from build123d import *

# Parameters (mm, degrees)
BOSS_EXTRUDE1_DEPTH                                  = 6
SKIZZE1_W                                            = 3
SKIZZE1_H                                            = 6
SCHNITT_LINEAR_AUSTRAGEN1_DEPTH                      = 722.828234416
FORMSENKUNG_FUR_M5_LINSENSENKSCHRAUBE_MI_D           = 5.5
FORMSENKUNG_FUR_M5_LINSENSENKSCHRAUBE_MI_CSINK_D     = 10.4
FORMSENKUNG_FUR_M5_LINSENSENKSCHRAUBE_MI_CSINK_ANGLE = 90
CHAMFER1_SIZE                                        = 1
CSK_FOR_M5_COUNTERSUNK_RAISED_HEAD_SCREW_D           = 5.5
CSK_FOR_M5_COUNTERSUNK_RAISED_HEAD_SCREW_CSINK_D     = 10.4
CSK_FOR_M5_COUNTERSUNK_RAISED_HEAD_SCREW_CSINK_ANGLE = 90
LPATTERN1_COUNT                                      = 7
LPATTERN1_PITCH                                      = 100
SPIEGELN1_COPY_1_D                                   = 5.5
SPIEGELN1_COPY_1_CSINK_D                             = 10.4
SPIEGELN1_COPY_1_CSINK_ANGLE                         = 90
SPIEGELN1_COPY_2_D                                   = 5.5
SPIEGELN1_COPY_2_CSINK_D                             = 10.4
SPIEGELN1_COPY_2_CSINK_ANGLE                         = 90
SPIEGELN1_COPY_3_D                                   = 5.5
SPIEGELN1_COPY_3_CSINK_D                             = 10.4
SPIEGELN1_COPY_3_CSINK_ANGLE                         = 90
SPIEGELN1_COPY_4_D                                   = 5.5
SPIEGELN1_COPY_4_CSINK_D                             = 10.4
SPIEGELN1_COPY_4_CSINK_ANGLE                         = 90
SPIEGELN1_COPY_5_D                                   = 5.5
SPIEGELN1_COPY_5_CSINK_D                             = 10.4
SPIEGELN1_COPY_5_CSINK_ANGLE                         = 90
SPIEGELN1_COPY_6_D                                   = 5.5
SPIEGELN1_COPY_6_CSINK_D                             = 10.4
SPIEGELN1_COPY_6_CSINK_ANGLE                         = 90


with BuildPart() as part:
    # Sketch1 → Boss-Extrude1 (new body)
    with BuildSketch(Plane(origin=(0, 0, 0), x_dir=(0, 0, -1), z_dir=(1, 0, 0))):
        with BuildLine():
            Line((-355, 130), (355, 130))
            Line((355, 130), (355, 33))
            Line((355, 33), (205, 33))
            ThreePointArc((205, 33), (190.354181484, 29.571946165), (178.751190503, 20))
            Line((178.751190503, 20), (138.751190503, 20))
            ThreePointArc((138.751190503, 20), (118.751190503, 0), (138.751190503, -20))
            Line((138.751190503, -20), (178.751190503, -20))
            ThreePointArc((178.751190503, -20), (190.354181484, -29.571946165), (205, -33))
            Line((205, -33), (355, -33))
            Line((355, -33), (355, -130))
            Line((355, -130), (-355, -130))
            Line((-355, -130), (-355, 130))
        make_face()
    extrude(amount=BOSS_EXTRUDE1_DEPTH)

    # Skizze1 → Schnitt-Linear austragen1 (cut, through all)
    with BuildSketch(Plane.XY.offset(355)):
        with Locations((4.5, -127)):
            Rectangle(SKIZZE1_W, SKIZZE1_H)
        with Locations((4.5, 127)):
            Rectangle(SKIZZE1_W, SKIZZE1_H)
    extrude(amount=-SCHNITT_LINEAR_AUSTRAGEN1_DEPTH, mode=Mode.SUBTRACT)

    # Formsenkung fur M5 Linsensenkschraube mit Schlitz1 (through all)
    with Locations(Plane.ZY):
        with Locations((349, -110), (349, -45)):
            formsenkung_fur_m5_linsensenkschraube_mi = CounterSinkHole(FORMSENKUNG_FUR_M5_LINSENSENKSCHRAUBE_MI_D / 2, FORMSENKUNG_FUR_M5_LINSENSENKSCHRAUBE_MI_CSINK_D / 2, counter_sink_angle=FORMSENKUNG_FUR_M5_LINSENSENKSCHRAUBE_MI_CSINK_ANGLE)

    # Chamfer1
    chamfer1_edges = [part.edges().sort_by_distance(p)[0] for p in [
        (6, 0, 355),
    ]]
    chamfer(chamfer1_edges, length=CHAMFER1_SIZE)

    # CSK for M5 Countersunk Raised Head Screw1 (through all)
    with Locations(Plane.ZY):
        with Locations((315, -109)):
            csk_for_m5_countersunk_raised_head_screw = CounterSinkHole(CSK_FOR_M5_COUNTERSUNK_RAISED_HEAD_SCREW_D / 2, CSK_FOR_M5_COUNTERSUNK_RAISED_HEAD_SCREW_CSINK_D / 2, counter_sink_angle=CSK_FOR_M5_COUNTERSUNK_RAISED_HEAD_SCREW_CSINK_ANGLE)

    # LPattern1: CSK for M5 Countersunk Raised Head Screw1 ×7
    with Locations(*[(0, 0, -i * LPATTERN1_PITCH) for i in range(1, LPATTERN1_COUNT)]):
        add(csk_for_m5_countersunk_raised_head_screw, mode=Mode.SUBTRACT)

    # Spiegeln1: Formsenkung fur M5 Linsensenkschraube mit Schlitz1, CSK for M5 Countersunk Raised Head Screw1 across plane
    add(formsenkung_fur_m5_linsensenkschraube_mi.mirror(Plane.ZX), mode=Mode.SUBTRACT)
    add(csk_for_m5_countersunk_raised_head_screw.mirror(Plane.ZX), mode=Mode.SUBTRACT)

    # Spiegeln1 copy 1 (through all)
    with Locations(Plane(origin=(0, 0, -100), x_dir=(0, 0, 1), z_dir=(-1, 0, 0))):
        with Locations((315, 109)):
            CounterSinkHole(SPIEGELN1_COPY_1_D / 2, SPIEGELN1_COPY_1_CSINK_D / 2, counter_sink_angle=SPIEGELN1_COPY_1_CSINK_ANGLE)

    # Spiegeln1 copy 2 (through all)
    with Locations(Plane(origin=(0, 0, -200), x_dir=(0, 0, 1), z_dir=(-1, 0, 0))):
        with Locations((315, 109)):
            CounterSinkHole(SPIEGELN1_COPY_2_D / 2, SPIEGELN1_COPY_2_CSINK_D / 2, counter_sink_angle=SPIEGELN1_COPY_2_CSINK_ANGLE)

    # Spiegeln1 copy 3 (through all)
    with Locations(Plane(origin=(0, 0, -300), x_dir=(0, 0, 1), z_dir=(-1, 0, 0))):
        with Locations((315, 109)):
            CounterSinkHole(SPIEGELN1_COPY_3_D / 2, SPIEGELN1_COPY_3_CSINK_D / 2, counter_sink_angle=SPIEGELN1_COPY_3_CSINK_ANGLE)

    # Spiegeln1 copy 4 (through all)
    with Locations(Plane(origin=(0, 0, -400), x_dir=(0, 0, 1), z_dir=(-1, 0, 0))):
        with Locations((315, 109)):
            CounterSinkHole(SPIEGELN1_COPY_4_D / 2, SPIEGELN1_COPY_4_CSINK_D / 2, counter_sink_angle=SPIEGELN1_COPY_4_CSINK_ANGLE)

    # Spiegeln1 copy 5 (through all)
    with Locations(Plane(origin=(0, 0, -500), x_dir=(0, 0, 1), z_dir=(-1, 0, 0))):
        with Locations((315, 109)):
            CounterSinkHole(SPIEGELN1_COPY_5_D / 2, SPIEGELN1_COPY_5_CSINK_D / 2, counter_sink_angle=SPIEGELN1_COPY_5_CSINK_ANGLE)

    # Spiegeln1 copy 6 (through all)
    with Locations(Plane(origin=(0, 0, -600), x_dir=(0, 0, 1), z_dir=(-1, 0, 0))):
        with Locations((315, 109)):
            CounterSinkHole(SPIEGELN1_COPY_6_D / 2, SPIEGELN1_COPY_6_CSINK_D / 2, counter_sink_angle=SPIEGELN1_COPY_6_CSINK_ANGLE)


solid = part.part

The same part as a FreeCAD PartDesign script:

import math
import FreeCAD as App
import Part
import Sketcher


def edges_at(feature, points):
    """Names of the edges that pass closest to the given points."""
    edges = feature.Shape.Edges
    near = lambda p: min(range(len(edges)), key=lambda i: edges[i].distToShape(Part.Vertex(*p))[0])
    return sorted({f"Edge{near(p) + 1}" for p in points})


def add_polygon(sketch, points):
    """Adds a closed chain of lines whose ends are joined by coincident constraints."""
    first, n = sketch.GeometryCount, len(points)
    for a, b in zip(points, points[1:] + points[:1]):
        sketch.addGeometry(Part.LineSegment(App.Vector(*a, 0), App.Vector(*b, 0)), False)
    for i in range(n):
        sketch.addConstraint(Sketcher.Constraint("Coincident", first + i, 2, first + (i + 1) % n, 1))

doc = App.newDocument("Part")
body = doc.addObject("PartDesign::Body", "Body")

# Sketch on YZ plane
sketch1 = doc.addObject("Sketcher::SketchObject", "Sketch")
body.addObject(sketch1)
sketch1.AttachmentSupport = (doc.YZ_Plane, [""])
sketch1.MapMode = "FlatFace"
sketch1.addGeometry([
    Part.LineSegment(App.Vector(130, -355, 0), App.Vector(130, 355, 0)),  # 0
    Part.LineSegment(App.Vector(130, 355, 0), App.Vector(-130, 355, 0)),  # 1
    Part.LineSegment(App.Vector(-130, 355, 0), App.Vector(-130, -355, 0)),  # 2
    Part.LineSegment(App.Vector(-130, -355, 0), App.Vector(-33, -355, 0)),  # 3
    Part.LineSegment(App.Vector(-33, -355, 0), App.Vector(-33, -205, 0)),  # 4
    Part.ArcOfCircle(Part.Circle(App.Vector(0, -205, 0), App.Vector(0, 0, 1), 33), math.radians(127), math.radians(180)),  # 5
    Part.LineSegment(App.Vector(-20, -179, 0), App.Vector(-20, -139, 0)),  # 6
    Part.ArcOfCircle(Part.Circle(App.Vector(0, -139, 0), App.Vector(0, 0, 1), 20), math.radians(0), math.radians(180)),  # 7
    Part.LineSegment(App.Vector(20, -139, 0), App.Vector(20, -179, 0)),  # 8
    Part.ArcOfCircle(Part.Circle(App.Vector(0, -205, 0), App.Vector(0, 0, 1), 33), math.radians(0), math.radians(53)),  # 9
    Part.LineSegment(App.Vector(33, -205, 0), App.Vector(33, -355, 0)),  # 10
    Part.LineSegment(App.Vector(33, -355, 0), App.Vector(130, -355, 0)),  # 11
], False)
sketch1.addConstraint([
    Sketcher.Constraint("Coincident", 0, 2, 1, 1),
    Sketcher.Constraint("Coincident", 1, 2, 2, 1),
    Sketcher.Constraint("Coincident", 2, 2, 3, 1),
    Sketcher.Constraint("Coincident", 3, 2, 4, 1),
    Sketcher.Constraint("Tangent", 4, 2, 5, 2),
    Sketcher.Constraint("Coincident", 5, 1, 6, 1),
    Sketcher.Constraint("Tangent", 6, 2, 7, 2),
    Sketcher.Constraint("Tangent", 7, 1, 8, 1),
    Sketcher.Constraint("Coincident", 8, 2, 9, 2),
    Sketcher.Constraint("Tangent", 9, 1, 10, 1),
    Sketcher.Constraint("Coincident", 10, 2, 11, 1),
    Sketcher.Constraint("Coincident", 11, 2, 0, 1),
    Sketcher.Constraint("Vertical", 0),
    Sketcher.Constraint("Horizontal", 1),
    Sketcher.Constraint("Vertical", 2),
    Sketcher.Constraint("Horizontal", 3),
    Sketcher.Constraint("Vertical", 4),
    Sketcher.Constraint("Vertical", 6),
    Sketcher.Constraint("Vertical", 8),
    Sketcher.Constraint("Vertical", 10),
    Sketcher.Constraint("Horizontal", 11),
    Sketcher.Constraint("Coincident", 9, 3, 5, 3),
    Sketcher.Constraint("Equal", 5, 9),
    Sketcher.Constraint("Symmetric", 0, 2, 2, 2, -1, 1),
    Sketcher.Constraint("Symmetric", 5, 1, 8, 2, -2),
    Sketcher.Constraint("Horizontal", 3, 2, 10, 2),
    Sketcher.Constraint("Radius", 5, 33.0),
    Sketcher.Constraint("Radius", 7, 20.0),
    Sketcher.Constraint("DistanceX", 1, 2, 1, 1, 260.0),
    Sketcher.Constraint("DistanceY", 0, 1, 0, 2, 710.0),
    Sketcher.Constraint("DistanceY", 4, 1, 4, 2, 150.0),
    Sketcher.Constraint("DistanceY", 6, 1, 6, 2, 40.0),
])
pad1 = doc.addObject("PartDesign::Pad", "Pad")
body.addObject(pad1)
pad1.Profile = sketch1
pad1.Length = 6

# Sketch on XY plane
sketch2 = doc.addObject("Sketcher::SketchObject", "Sketch001")
body.addObject(sketch2)
sketch2.AttachmentSupport = (doc.XY_Plane, [""])
sketch2.MapMode = "FlatFace"
sketch2.AttachmentOffset = App.Placement(App.Vector(0, 0, 355), App.Rotation())
add_polygon(sketch2, [(3, -124), (3, -130), (6, -130), (6, -124)])  # lines 0-3
add_polygon(sketch2, [(3, 130), (3, 124), (6, 124), (6, 130)])  # lines 4-7
sketch2.addConstraint([
    Sketcher.Constraint("Vertical", 0),
    Sketcher.Constraint("Horizontal", 1),
    Sketcher.Constraint("Vertical", 2),
    Sketcher.Constraint("Horizontal", 3),
    Sketcher.Constraint("Vertical", 4),
    Sketcher.Constraint("Horizontal", 5),
    Sketcher.Constraint("Vertical", 6),
    Sketcher.Constraint("Horizontal", 7),
    Sketcher.Constraint("Symmetric", 3, 2, 4, 2, -1),
    Sketcher.Constraint("Symmetric", 1, 2, 6, 2, -1),
    Sketcher.Constraint("DistanceX", 1, 1, 1, 2, 3.0),
    Sketcher.Constraint("DistanceY", 0, 2, 0, 1, 6.0),
    Sketcher.Constraint("DistanceX", -1, 1, 0, 2, 3.0),
    Sketcher.Constraint("DistanceY", 0, 2, -1, 1, 130.0),
])
pocket1 = doc.addObject("PartDesign::Pocket", "Pocket")
body.addObject(pocket1)
pocket1.Profile = sketch2
pocket1.Type = "ThroughAll"

# Sketch on YZ plane
sketch3 = doc.addObject("Sketcher::SketchObject", "Sketch002")
body.addObject(sketch3)
sketch3.AttachmentSupport = (doc.YZ_Plane, [""])
sketch3.MapMode = "FlatFace"
sketch3.addGeometry([
    Part.Circle(App.Vector(-110, 349, 0), App.Vector(0, 0, 1), 2.8),
    Part.Circle(App.Vector(-45, 349, 0), App.Vector(0, 0, 1), 2.8),
], False)
sketch3.addConstraint([
    Sketcher.Constraint("Equal", 0, 1),
    Sketcher.Constraint("Horizontal", 0, 3, 1, 3),
    Sketcher.Constraint("Diameter", 0, 5.5),
    Sketcher.Constraint("DistanceX", 0, 3, -1, 1, 110.0),
    Sketcher.Constraint("DistanceY", -1, 1, 0, 3, 349.0),
    Sketcher.Constraint("DistanceX", 1, 3, -1, 1, 45.0),
])
doc.recompute()
hole = doc.addObject("PartDesign::Hole", "Hole")
body.addObject(hole)
hole.Profile = sketch3
hole.ThreadType = "None"
hole.Diameter = 5.5
hole.DepthType = "ThroughAll"
hole.HoleCutType = "Countersink"
hole.HoleCutDiameter = 10.4
hole.HoleCutCountersinkAngle = 90
hole.Reversed = True
doc.recompute()

chamfer = doc.addObject("PartDesign::Chamfer", "Chamfer")
body.addObject(chamfer)
chamfer.Base = (hole, edges_at(hole, [(6, 0, 355)]))
chamfer.Size = 1

# Sketch on YZ plane
sketch4 = doc.addObject("Sketcher::SketchObject", "Sketch003")
body.addObject(sketch4)
sketch4.AttachmentSupport = (doc.YZ_Plane, [""])
sketch4.MapMode = "FlatFace"
sketch4.addGeometry(Part.Circle(App.Vector(-109, 315, 0), App.Vector(0, 0, 1), 2.8), False)
sketch4.addConstraint([
    Sketcher.Constraint("Diameter", 0, 5.5),
    Sketcher.Constraint("DistanceX", 0, 3, -1, 1, 109.0),
    Sketcher.Constraint("DistanceY", -1, 1, 0, 3, 315.0),
])
doc.recompute()
hole2 = doc.addObject("PartDesign::Hole", "Hole001")
body.addObject(hole2)
hole2.Profile = sketch4
hole2.ThreadType = "None"
hole2.Diameter = 5.5
hole2.DepthType = "ThroughAll"
hole2.HoleCutType = "Countersink"
hole2.HoleCutDiameter = 10.4
hole2.HoleCutCountersinkAngle = 90
hole2.Reversed = True
doc.recompute()

linearpattern = doc.addObject("PartDesign::LinearPattern", "LinearPattern")
body.addObject(linearpattern)
linearpattern.Originals = [hole2]
linearpattern.Direction = (doc.Z_Axis, [""])
linearpattern.Mode = "offset"
linearpattern.Offset = 100
linearpattern.Occurrences = 7
linearpattern.Reversed = True
body.Tip = linearpattern
doc.recompute()

mirrored = doc.addObject("PartDesign::Mirrored", "Mirrored")
body.addObject(mirrored)
mirrored.Originals = [hole, hole2]
mirrored.MirrorPlane = (doc.XZ_Plane, [""])
body.Tip = mirrored

# Sketch on YZ plane
sketch5 = doc.addObject("Sketcher::SketchObject", "Sketch004")
body.addObject(sketch5)
sketch5.AttachmentSupport = (doc.YZ_Plane, [""])
sketch5.MapMode = "FlatFace"
sketch5.addGeometry(Part.Circle(App.Vector(109, 215, 0), App.Vector(0, 0, 1), 2.8), False)
sketch5.addConstraint([
    Sketcher.Constraint("Diameter", 0, 5.5),
    Sketcher.Constraint("DistanceX", -1, 1, 0, 3, 109.0),
    Sketcher.Constraint("DistanceY", -1, 1, 0, 3, 215.0),
])
doc.recompute()
hole3 = doc.addObject("PartDesign::Hole", "Hole002")
body.addObject(hole3)
hole3.Profile = sketch5
hole3.ThreadType = "None"
hole3.Diameter = 5.5
hole3.DepthType = "ThroughAll"
hole3.HoleCutType = "Countersink"
hole3.HoleCutDiameter = 10.4
hole3.HoleCutCountersinkAngle = 90
hole3.Reversed = True

# Sketch on YZ plane
sketch6 = doc.addObject("Sketcher::SketchObject", "Sketch005")
body.addObject(sketch6)
sketch6.AttachmentSupport = (doc.YZ_Plane, [""])
sketch6.MapMode = "FlatFace"
sketch6.addGeometry(Part.Circle(App.Vector(109, 115, 0), App.Vector(0, 0, 1), 2.8), False)
sketch6.addConstraint([
    Sketcher.Constraint("Diameter", 0, 5.5),
    Sketcher.Constraint("DistanceX", -1, 1, 0, 3, 109.0),
    Sketcher.Constraint("DistanceY", -1, 1, 0, 3, 115.0),
])
doc.recompute()
hole4 = doc.addObject("PartDesign::Hole", "Hole003")
body.addObject(hole4)
hole4.Profile = sketch6
hole4.ThreadType = "None"
hole4.Diameter = 5.5
hole4.DepthType = "ThroughAll"
hole4.HoleCutType = "Countersink"
hole4.HoleCutDiameter = 10.4
hole4.HoleCutCountersinkAngle = 90
hole4.Reversed = True

# Sketch on YZ plane
sketch7 = doc.addObject("Sketcher::SketchObject", "Sketch006")
body.addObject(sketch7)
sketch7.AttachmentSupport = (doc.YZ_Plane, [""])
sketch7.MapMode = "FlatFace"
sketch7.addGeometry(Part.Circle(App.Vector(109, 15, 0), App.Vector(0, 0, 1), 2.8), False)
sketch7.addConstraint([
    Sketcher.Constraint("Diameter", 0, 5.5),
    Sketcher.Constraint("DistanceX", -1, 1, 0, 3, 109.0),
    Sketcher.Constraint("DistanceY", -1, 1, 0, 3, 15.0),
])
doc.recompute()
hole5 = doc.addObject("PartDesign::Hole", "Hole004")
body.addObject(hole5)
hole5.Profile = sketch7
hole5.ThreadType = "None"
hole5.Diameter = 5.5
hole5.DepthType = "ThroughAll"
hole5.HoleCutType = "Countersink"
hole5.HoleCutDiameter = 10.4
hole5.HoleCutCountersinkAngle = 90
hole5.Reversed = True

# Sketch on YZ plane
sketch8 = doc.addObject("Sketcher::SketchObject", "Sketch007")
body.addObject(sketch8)
sketch8.AttachmentSupport = (doc.YZ_Plane, [""])
sketch8.MapMode = "FlatFace"
sketch8.addGeometry(Part.Circle(App.Vector(109, -85, 0), App.Vector(0, 0, 1), 2.8), False)
sketch8.addConstraint([
    Sketcher.Constraint("Diameter", 0, 5.5),
    Sketcher.Constraint("DistanceX", -1, 1, 0, 3, 109.0),
    Sketcher.Constraint("DistanceY", 0, 3, -1, 1, 85.0),
])
doc.recompute()
hole6 = doc.addObject("PartDesign::Hole", "Hole005")
body.addObject(hole6)
hole6.Profile = sketch8
hole6.ThreadType = "None"
hole6.Diameter = 5.5
hole6.DepthType = "ThroughAll"
hole6.HoleCutType = "Countersink"
hole6.HoleCutDiameter = 10.4
hole6.HoleCutCountersinkAngle = 90
hole6.Reversed = True

# Sketch on YZ plane
sketch9 = doc.addObject("Sketcher::SketchObject", "Sketch008")
body.addObject(sketch9)
sketch9.AttachmentSupport = (doc.YZ_Plane, [""])
sketch9.MapMode = "FlatFace"
sketch9.addGeometry(Part.Circle(App.Vector(109, -185, 0), App.Vector(0, 0, 1), 2.8), False)
sketch9.addConstraint([
    Sketcher.Constraint("Diameter", 0, 5.5),
    Sketcher.Constraint("DistanceX", -1, 1, 0, 3, 109.0),
    Sketcher.Constraint("DistanceY", 0, 3, -1, 1, 185.0),
])
doc.recompute()
hole7 = doc.addObject("PartDesign::Hole", "Hole006")
body.addObject(hole7)
hole7.Profile = sketch9
hole7.ThreadType = "None"
hole7.Diameter = 5.5
hole7.DepthType = "ThroughAll"
hole7.HoleCutType = "Countersink"
hole7.HoleCutDiameter = 10.4
hole7.HoleCutCountersinkAngle = 90
hole7.Reversed = True

# Sketch on YZ plane
sketch10 = doc.addObject("Sketcher::SketchObject", "Sketch009")
body.addObject(sketch10)
sketch10.AttachmentSupport = (doc.YZ_Plane, [""])
sketch10.MapMode = "FlatFace"
sketch10.addGeometry(Part.Circle(App.Vector(109, -285, 0), App.Vector(0, 0, 1), 2.8), False)
sketch10.addConstraint([
    Sketcher.Constraint("Diameter", 0, 5.5),
    Sketcher.Constraint("DistanceX", -1, 1, 0, 3, 109.0),
    Sketcher.Constraint("DistanceY", 0, 3, -1, 1, 285.0),
])
doc.recompute()
hole8 = doc.addObject("PartDesign::Hole", "Hole007")
body.addObject(hole8)
hole8.Profile = sketch10
hole8.ThreadType = "None"
hole8.Diameter = 5.5
hole8.DepthType = "ThroughAll"
hole8.HoleCutType = "Countersink"
hole8.HoleCutDiameter = 10.4
hole8.HoleCutCountersinkAngle = 90
hole8.Reversed = True

doc.recompute()
